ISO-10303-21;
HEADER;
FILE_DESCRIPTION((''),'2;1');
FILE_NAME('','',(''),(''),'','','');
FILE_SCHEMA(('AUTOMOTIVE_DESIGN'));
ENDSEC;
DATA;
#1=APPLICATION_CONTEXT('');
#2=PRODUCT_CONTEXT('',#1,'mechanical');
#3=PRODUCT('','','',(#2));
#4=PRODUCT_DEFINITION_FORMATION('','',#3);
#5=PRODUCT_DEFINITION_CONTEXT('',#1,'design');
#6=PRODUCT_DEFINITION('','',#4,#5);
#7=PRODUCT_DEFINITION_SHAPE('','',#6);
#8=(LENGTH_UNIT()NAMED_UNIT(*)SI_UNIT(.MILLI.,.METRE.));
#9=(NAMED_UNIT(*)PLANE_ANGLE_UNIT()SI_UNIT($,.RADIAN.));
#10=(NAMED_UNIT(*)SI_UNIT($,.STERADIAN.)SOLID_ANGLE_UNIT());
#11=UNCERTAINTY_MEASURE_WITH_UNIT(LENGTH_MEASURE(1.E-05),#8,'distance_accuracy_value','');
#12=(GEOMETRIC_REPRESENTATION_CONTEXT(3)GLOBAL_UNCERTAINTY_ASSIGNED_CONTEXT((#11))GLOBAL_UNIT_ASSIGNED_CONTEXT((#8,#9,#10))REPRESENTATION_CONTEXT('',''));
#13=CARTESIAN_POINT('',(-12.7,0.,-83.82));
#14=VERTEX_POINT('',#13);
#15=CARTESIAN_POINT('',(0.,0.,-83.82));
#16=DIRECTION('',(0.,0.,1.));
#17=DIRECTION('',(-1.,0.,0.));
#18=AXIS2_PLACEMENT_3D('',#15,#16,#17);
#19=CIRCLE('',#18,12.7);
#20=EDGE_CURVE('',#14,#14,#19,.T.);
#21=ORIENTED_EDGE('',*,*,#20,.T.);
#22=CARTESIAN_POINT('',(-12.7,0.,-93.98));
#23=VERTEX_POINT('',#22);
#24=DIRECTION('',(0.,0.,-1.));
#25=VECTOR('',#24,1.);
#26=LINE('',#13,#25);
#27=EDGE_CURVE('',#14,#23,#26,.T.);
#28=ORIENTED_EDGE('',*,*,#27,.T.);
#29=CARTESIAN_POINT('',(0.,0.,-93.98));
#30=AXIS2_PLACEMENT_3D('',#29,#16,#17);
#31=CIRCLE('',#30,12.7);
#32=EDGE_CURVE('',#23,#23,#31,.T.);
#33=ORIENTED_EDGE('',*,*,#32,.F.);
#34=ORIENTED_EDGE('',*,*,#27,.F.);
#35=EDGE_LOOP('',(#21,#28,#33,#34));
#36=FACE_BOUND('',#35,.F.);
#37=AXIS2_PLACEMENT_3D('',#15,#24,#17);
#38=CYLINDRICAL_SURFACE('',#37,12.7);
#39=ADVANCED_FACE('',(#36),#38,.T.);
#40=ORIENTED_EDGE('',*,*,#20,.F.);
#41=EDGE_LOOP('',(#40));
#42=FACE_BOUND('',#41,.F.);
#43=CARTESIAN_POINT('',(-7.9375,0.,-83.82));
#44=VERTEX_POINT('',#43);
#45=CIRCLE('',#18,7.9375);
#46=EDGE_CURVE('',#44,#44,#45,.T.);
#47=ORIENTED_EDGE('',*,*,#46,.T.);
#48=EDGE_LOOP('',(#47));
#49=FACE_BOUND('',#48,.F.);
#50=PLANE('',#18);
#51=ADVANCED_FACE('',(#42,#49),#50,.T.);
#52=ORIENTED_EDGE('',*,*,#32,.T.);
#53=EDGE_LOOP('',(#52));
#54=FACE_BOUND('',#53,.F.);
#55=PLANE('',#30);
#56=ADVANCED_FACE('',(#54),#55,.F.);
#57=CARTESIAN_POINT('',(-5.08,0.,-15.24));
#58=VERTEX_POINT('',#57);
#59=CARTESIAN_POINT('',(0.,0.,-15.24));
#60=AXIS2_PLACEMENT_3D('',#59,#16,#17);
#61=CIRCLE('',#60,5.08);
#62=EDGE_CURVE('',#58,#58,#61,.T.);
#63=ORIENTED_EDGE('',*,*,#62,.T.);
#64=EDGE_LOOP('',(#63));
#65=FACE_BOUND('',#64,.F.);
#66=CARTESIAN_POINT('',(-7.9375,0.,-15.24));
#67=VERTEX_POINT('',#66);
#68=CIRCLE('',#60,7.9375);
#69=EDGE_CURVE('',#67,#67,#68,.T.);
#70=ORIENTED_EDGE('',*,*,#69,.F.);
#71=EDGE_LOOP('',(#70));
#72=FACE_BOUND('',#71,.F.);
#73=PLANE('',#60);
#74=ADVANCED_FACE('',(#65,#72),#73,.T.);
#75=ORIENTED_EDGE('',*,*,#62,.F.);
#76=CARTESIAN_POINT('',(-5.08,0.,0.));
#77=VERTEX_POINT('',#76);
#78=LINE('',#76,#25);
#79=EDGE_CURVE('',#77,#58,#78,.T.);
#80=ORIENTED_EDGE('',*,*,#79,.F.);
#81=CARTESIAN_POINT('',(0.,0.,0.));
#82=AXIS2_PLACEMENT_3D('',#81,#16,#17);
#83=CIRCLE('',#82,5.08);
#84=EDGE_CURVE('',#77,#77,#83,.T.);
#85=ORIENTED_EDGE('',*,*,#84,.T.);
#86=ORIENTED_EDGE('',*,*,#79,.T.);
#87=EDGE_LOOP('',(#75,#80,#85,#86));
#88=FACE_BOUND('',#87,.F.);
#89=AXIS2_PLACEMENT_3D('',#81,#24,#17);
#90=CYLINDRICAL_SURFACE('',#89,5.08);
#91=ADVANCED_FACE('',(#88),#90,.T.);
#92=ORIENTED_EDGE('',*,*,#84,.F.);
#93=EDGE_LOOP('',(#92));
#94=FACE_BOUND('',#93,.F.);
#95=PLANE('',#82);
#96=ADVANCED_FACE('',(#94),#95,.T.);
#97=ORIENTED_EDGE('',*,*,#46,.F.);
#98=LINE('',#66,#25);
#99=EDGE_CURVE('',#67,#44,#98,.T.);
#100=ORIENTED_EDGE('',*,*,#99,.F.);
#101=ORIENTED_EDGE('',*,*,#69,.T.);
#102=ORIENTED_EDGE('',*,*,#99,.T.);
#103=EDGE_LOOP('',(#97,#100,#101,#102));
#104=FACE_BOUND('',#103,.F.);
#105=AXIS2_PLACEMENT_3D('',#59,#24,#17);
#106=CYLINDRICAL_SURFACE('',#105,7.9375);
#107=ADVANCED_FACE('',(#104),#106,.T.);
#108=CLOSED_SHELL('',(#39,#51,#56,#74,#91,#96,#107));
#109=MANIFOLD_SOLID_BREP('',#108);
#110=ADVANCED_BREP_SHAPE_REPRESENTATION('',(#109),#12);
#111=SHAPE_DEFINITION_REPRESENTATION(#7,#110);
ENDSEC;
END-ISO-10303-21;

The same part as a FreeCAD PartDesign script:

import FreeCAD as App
import Part
import Sketcher
Q = App.Units.Quantity

doc = App.newDocument("Part")
body = doc.addObject("PartDesign::Body", "Body")

# Sketch on XZ plane
sketch1 = body.newObject("Sketcher::SketchObject", "Sketch")
sketch1.AttachmentSupport = (doc.getObject("XZ_Plane"), [""])
sketch1.MapMode = "FlatFace"
sketch1.addGeometry(Part.LineSegment(App.Vector(-5.08, 0, 0), App.Vector(0, 0, 0)), False)
sketch1.addGeometry(Part.LineSegment(App.Vector(0, 0, 0), App.Vector(0, -93.98, 0)), False)
sketch1.addGeometry(Part.LineSegment(App.Vector(0, -93.98, 0), App.Vector(-12.7, -93.98, 0)), False)
sketch1.addGeometry(Part.LineSegment(App.Vector(-12.7, -93.98, 0), App.Vector(-12.7, -83.82, 0)), False)
sketch1.addGeometry(Part.LineSegment(App.Vector(-12.7, -83.82, 0), App.Vector(-7.9375, -83.82, 0)), False)
sketch1.addGeometry(Part.LineSegment(App.Vector(-7.9375, -83.82, 0), App.Vector(-7.9375, -15.24, 0)), False)
sketch1.addGeometry(Part.LineSegment(App.Vector(-7.9375, -15.24, 0), App.Vector(-5.08, -15.24, 0)), False)
sketch1.addGeometry(Part.LineSegment(App.Vector(-5.08, -15.24, 0), App.Vector(-5.08, 0, 0)), False)
sketch1.addConstraint(Sketcher.Constraint("Coincident", 0, 2, 1, 1))
sketch1.addConstraint(Sketcher.Constraint("Coincident", 1, 2, 2, 1))
sketch1.addConstraint(Sketcher.Constraint("Coincident", 2, 2, 3, 1))
sketch1.addConstraint(Sketcher.Constraint("Coincident", 3, 2, 4, 1))
sketch1.addConstraint(Sketcher.Constraint("Coincident", 4, 2, 5, 1))
sketch1.addConstraint(Sketcher.Constraint("Coincident", 5, 2, 6, 1))
sketch1.addConstraint(Sketcher.Constraint("Coincident", 6, 2, 7, 1))
sketch1.addConstraint(Sketcher.Constraint("Coincident", 7, 2, 0, 1))
sketch1.addConstraint(Sketcher.Constraint("Horizontal", 0))
sketch1.addConstraint(Sketcher.Constraint("Vertical", 1))
sketch1.addConstraint(Sketcher.Constraint("Horizontal", 2))
sketch1.addConstraint(Sketcher.Constraint("Vertical", 3))
sketch1.addConstraint(Sketcher.Constraint("Horizontal", 4))
sketch1.addConstraint(Sketcher.Constraint("Vertical", 5))
sketch1.addConstraint(Sketcher.Constraint("Horizontal", 6))
sketch1.addConstraint(Sketcher.Constraint("Vertical", 7))
sketch1.addConstraint(Sketcher.Constraint("Coincident", 0, 2, -1, 1))
sketch1.addConstraint(Sketcher.Constraint("DistanceX", 0, 1, 0, 2, Q("0.2 in")))
sketch1.addConstraint(Sketcher.Constraint("DistanceX", 2, 2, 2, 1, Q("0.5 in")))
sketch1.addConstraint(Sketcher.Constraint("DistanceY", 1, 2, 1, 1, Q("3.7 in")))
sketch1.addConstraint(Sketcher.Constraint("DistanceY", 3, 1, 3, 2, Q("0.4 in")))
sketch1.addConstraint(Sketcher.Constraint("DistanceY", 5, 1, 5, 2, Q("2.7 in")))
sketch1.addConstraint(Sketcher.Constraint("DistanceX", 4, 2, -1, 1, Q("0.3125 in")))
revolution = body.newObject("PartDesign::Revolution", "Revolution")
revolution.Profile = sketch1
revolution.ReferenceAxis = (sketch1, ["V_Axis"])
revolution.Angle = 360

doc.recompute()
